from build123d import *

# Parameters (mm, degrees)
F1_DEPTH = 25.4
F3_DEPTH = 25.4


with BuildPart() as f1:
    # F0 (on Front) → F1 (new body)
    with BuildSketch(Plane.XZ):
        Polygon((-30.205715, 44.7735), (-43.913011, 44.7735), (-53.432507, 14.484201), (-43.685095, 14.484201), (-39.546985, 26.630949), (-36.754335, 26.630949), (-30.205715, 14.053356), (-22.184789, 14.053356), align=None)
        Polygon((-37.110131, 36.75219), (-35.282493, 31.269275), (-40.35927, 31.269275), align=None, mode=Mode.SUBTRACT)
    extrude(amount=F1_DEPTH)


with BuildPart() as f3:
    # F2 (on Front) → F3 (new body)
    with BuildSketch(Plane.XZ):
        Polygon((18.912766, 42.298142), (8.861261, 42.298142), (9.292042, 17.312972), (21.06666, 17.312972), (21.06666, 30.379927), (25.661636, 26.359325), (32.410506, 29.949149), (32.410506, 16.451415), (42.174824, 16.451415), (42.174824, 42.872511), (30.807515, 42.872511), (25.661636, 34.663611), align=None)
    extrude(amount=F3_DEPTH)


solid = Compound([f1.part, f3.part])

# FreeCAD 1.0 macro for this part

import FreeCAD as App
import Part
import Sketcher

V = App.Vector
Q = App.Units.Quantity


def add_polygon(sketch, points):
    """Adds a closed chain of lines whose ends are joined by coincident constraints."""
    first, n = sketch.GeometryCount, len(points)
    for a, b in zip(points, points[1:] + points[:1]):
        sketch.addGeometry(Part.LineSegment(App.Vector(*a, 0), App.Vector(*b, 0)), False)
    for i in range(n):
        sketch.addConstraint(Sketcher.Constraint("Coincident", first + i, 2, first + (i + 1) % n, 1))

doc = App.newDocument("Part")
body = doc.addObject("PartDesign::Body", "Body")

# Sketch on XZ plane
sketch1 = doc.addObject("Sketcher::SketchObject", "Sketch")
body.addObject(sketch1)
sketch1.AttachmentSupport = (doc.XZ_Plane, [""])
sketch1.MapMode = "FlatFace"
add_polygon(sketch1, [(-30.2, 44.8), (-43.9, 44.8), (-53.4, 14.5), (-43.7, 14.5), (-39.5, 26.6), (-36.8, 26.6), (-30.2, 14.1), (-22.2, 14.1)])  # lines 0-7
add_polygon(sketch1, [(-40.4, 31.3), (-37.1, 36.8), (-35.3, 31.3)])  # lines 8-10
sketch1.addConstraint(Sketcher.Constraint("Horizontal", 0))
sketch1.addConstraint(Sketcher.Constraint("Horizontal", 2))
sketch1.addConstraint(Sketcher.Constraint("Horizontal", 4))
sketch1.addConstraint(Sketcher.Constraint("Horizontal", 6))
sketch1.addConstraint(Sketcher.Constraint("Horizontal", 10))
sketch1.addConstraint(Sketcher.Constraint("Vertical", 5, 2, 7, 2))
sketch1.addConstraint(Sketcher.Constraint("Equal", 1, 7))
sketch1.addConstraint(Sketcher.Constraint("Distance", 1, Q("1.25 in")))
sketch1.addConstraint(Sketcher.Constraint("Distance", 9, Q("5.7795 mm")))
sketch1.addConstraint(Sketcher.Constraint("DistanceX", 4, 1, 4, 2, Q("2.79265 mm")))
sketch1.addConstraint(Sketcher.Constraint("DistanceY", -1, 1, 0, 2, Q("44.7735 mm")))
sketch1.addConstraint(Sketcher.Constraint("DistanceY", -1, 1, 1, 2, Q("14.484201 mm")))
sketch1.addConstraint(Sketcher.Constraint("Distance", 3, Q("12.832281 mm")))
sketch1.addConstraint(Sketcher.Constraint("DistanceX", 0, 2, 0, 1, Q("13.707296 mm")))
sketch1.addConstraint(Sketcher.Constraint("DistanceX", 2, 1, 2, 2, Q("9.747412 mm")))
sketch1.addConstraint(Sketcher.Constraint("DistanceX", 6, 1, 6, 2, Q("8.020926 mm")))
sketch1.addConstraint(Sketcher.Constraint("DistanceX", 10, 2, 10, 1, Q("5.076777 mm")))
sketch1.addConstraint(Sketcher.Constraint("DistanceX", 0, 2, -1, 1, Q("43.913011 mm")))
sketch1.addConstraint(Sketcher.Constraint("DistanceY", -1, 1, 3, 2, Q("26.630949 mm")))
sketch1.addConstraint(Sketcher.Constraint("DistanceX", 8, 2, -1, 1, Q("37.110131 mm")))
sketch1.addConstraint(Sketcher.Constraint("DistanceY", -1, 1, 8, 2, Q("36.75219 mm")))
sketch1.addConstraint(Sketcher.Constraint("DistanceX", 10, 2, -1, 1, Q("40.35927 mm")))
pad1 = doc.addObject("PartDesign::Pad", "Pad")
body.addObject(pad1)
pad1.Profile = sketch1
pad1.Length = Q("1 in")
body2 = doc.addObject("PartDesign::Body", "Body001")

# Sketch on XZ plane
sketch2 = doc.addObject("Sketcher::SketchObject", "Sketch001")
body2.addObject(sketch2)
sketch2.AttachmentSupport = (doc.getObject("XZ_Plane001"), [""])
sketch2.MapMode = "FlatFace"
add_polygon(sketch2, [(19, 42), (9, 42), (9, 17), (21, 17), (21, 30), (26, 26), (32, 30), (32, 16), (42, 16), (42, 43), (31, 43), (26, 35)])  # lines 0-11
sketch2.addConstraint(Sketcher.Constraint("Horizontal", 0))
sketch2.addConstraint(Sketcher.Constraint("Horizontal", 2))
sketch2.addConstraint(Sketcher.Constraint("Vertical", 3))
sketch2.addConstraint(Sketcher.Constraint("Vertical", 6))
sketch2.addConstraint(Sketcher.Constraint("Horizontal", 7))
sketch2.addConstraint(Sketcher.Constraint("Vertical", 8))
sketch2.addConstraint(Sketcher.Constraint("Horizontal", 9))
sketch2.addConstraint(Sketcher.Constraint("Vertical", 4, 2, 10, 2))
sketch2.addConstraint(Sketcher.Constraint("DistanceX", 7, 1, 7, 2, Q("9.764318 mm")))
sketch2.addConstraint(Sketcher.Constraint("DistanceX", 9, 2, 9, 1, Q("11.367309 mm")))
sketch2.addConstraint(Sketcher.Constraint("DistanceX", 0, 2, 2, 2, Q("12.205399 mm")))
sketch2.addConstraint(Sketcher.Constraint("DistanceY", 10, 2, 9, 2, Q("8.2089 mm")))
sketch2.addConstraint(Sketcher.Constraint("Distance", 5, Q("7.644219 mm")))
sketch2.addConstraint(Sketcher.Constraint("DistanceX", 0, 2, 0, 1, Q("10.051505 mm")))
sketch2.addConstraint(Sketcher.Constraint("DistanceX", 2, 1, 2, 2, Q("11.774618 mm")))
sketch2.addConstraint(Sketcher.Constraint("DistanceY", 3, 1, 3, 2, Q("13.066955 mm")))
sketch2.addConstraint(Sketcher.Constraint("DistanceY", 6, 2, 6, 1, Q("13.497734 mm")))
sketch2.addConstraint(Sketcher.Constraint("DistanceY", 8, 1, 8, 2, Q("26.421096 mm")))
sketch2.addConstraint(Sketcher.Constraint("DistanceX", -1, 1, 0, 2, Q("8.861261 mm")))
sketch2.addConstraint(Sketcher.Constraint("DistanceY", -1, 1, 1, 2, Q("17.312972 mm")))
sketch2.addConstraint(Sketcher.Constraint("DistanceY", -1, 1, 5, 2, Q("29.949149 mm")))
sketch2.addConstraint(Sketcher.Constraint("DistanceY", 1, 2, 0, 2, Q("24.98517 mm")))
sketch2.addConstraint(Sketcher.Constraint("DistanceX", 4, 2, 5, 2, Q("6.74887 mm")))
sketch2.addConstraint(Sketcher.Constraint("DistanceX", 11, 2, 10, 2, Q("6.74887 mm")))
pad2 = doc.addObject("PartDesign::Pad", "Pad001")
body2.addObject(pad2)
pad2.Profile = sketch2
pad2.Length = Q("1 in")

doc.recompute()
